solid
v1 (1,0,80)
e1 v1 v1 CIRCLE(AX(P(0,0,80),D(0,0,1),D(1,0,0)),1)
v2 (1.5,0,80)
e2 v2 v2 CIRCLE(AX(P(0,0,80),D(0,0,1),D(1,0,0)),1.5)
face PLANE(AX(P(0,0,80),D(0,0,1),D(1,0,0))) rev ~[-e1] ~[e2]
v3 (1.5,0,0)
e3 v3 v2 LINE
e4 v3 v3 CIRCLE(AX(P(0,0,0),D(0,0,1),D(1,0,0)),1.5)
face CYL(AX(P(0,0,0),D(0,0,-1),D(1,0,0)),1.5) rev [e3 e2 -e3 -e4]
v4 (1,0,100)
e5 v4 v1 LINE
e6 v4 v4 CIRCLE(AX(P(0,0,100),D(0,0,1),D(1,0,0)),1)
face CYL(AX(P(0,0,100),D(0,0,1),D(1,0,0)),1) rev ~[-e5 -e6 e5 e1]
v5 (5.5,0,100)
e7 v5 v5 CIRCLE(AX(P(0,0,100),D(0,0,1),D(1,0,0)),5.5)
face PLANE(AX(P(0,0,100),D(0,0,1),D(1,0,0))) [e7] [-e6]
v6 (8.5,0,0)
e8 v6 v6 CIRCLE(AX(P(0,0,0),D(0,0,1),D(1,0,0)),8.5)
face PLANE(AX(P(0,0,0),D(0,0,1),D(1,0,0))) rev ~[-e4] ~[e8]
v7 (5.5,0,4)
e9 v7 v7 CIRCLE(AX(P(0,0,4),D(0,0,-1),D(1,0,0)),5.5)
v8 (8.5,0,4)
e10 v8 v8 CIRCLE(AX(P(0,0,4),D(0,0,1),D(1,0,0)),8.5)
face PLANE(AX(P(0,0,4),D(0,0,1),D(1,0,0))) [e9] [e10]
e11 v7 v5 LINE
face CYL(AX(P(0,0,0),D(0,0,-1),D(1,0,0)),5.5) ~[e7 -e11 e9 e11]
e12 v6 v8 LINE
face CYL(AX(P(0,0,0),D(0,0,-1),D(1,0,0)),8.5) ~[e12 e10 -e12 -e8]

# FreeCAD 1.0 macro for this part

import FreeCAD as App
import Part
import Sketcher

doc = App.newDocument("Part")
body = doc.addObject("PartDesign::Body", "Body")

sketch1 = body.newObject("Sketcher::SketchObject", "Sketch")
sketch1.AttachmentSupport = (doc.getObject("XY_Plane"), [""])
sketch1.MapMode = "FlatFace"
sketch1.addGeometry(Part.Circle(App.Vector(0, 0, 0), App.Vector(0, 0, 1), 8), False)
sketch1.addConstraint([
    Sketcher.Constraint("Coincident", 0, 3, -1, 1),
    Sketcher.Constraint("Diameter", 0, 17.0),
])
pad1 = body.newObject("PartDesign::Pad", "Pad")
pad1.Profile = sketch1
pad1.Length = 4

sketch2 = body.newObject("Sketcher::SketchObject", "Sketch001")
sketch2.AttachmentSupport = (doc.getObject("XY_Plane"), [""])
sketch2.MapMode = "FlatFace"
sketch2.addGeometry(Part.Circle(App.Vector(0, 0, 0), App.Vector(0, 0, 1), 6), False)
sketch2.addConstraint([
    Sketcher.Constraint("Coincident", 0, 3, -1, 1),
    Sketcher.Constraint("Diameter", 0, 11.0),
])
pad2 = body.newObject("PartDesign::Pad", "Pad001")
pad2.Profile = sketch2
pad2.Length = 100

sketch3 = body.newObject("Sketcher::SketchObject", "Sketch002")
sketch3.AttachmentSupport = (doc.getObject("XY_Plane"), [""])
sketch3.MapMode = "FlatFace"
sketch3.AttachmentOffset = App.Placement(App.Vector(0, 0, 100), App.Rotation())
sketch3.addGeometry(Part.Circle(App.Vector(0, 0, 0), App.Vector(0, 0, 1), 1), False)
sketch3.addConstraint([
    Sketcher.Constraint("Coincident", 0, 3, -1, 1),
    Sketcher.Constraint("Diameter", 0, 2.0),
])
pocket1 = body.newObject("PartDesign::Pocket", "Pocket")
pocket1.Profile = sketch3
pocket1.Length = 114.9

sketch4 = body.newObject("Sketcher::SketchObject", "Sketch003")
sketch4.AttachmentSupport = (doc.getObject("XY_Plane"), [""])
sketch4.MapMode = "FlatFace"
sketch4.addGeometry(Part.Circle(App.Vector(0, 0, 0), App.Vector(0, 0, 1), 1.5), False)
sketch4.addConstraint([
    Sketcher.Constraint("Coincident", 0, 3, -1, 1),
    Sketcher.Constraint("Diameter", 0, 3.0),
])
pocket2 = body.newObject("PartDesign::Pocket", "Pocket001")
pocket2.Profile = sketch4
pocket2.Length = 80
pocket2.Reversed = True

doc.recompute()
